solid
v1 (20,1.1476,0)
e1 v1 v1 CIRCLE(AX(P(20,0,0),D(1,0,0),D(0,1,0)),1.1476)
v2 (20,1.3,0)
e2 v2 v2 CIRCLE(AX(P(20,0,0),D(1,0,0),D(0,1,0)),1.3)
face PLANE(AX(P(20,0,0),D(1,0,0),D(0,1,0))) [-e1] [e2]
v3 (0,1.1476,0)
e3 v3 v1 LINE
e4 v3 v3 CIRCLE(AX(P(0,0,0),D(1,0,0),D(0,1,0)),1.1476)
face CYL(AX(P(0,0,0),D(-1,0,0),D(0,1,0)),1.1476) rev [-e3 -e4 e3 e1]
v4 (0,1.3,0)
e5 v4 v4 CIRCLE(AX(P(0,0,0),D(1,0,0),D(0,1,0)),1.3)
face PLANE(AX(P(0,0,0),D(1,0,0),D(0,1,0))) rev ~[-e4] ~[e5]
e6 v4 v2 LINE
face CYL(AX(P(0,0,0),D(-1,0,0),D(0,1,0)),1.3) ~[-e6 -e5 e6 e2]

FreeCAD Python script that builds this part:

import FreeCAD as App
import Part
import Sketcher
from FreeCAD import Vector

doc = App.newDocument("Part")
body = doc.addObject("PartDesign::Body", "Body")

# Sketch on YZ plane
sketch1 = doc.addObject("Sketcher::SketchObject", "Sketch")
body.addObject(sketch1)
sketch1.AttachmentSupport = (doc.YZ_Plane, [""])
sketch1.MapMode = "FlatFace"
sketch1.addGeometry(Part.Circle(Vector(0, 0, 0), Vector(0, 0, 1), 1.3), False)
sketch1.addGeometry(Part.Circle(Vector(0, 0, 0), Vector(0, 0, 1), 1.1), False)
sketch1.addConstraint(Sketcher.Constraint("Coincident", 0, 3, -1, 1))
sketch1.addConstraint(Sketcher.Constraint("Coincident", 1, 3, -1, 1))
sketch1.addConstraint(Sketcher.Constraint("Diameter", 0, 2.6))
sketch1.addConstraint(Sketcher.Constraint("Diameter", 1, 2.2952))
pad1 = doc.addObject("PartDesign::Pad", "Pad")
body.addObject(pad1)
pad1.Profile = sketch1
pad1.Length = 20

doc.recompute()
